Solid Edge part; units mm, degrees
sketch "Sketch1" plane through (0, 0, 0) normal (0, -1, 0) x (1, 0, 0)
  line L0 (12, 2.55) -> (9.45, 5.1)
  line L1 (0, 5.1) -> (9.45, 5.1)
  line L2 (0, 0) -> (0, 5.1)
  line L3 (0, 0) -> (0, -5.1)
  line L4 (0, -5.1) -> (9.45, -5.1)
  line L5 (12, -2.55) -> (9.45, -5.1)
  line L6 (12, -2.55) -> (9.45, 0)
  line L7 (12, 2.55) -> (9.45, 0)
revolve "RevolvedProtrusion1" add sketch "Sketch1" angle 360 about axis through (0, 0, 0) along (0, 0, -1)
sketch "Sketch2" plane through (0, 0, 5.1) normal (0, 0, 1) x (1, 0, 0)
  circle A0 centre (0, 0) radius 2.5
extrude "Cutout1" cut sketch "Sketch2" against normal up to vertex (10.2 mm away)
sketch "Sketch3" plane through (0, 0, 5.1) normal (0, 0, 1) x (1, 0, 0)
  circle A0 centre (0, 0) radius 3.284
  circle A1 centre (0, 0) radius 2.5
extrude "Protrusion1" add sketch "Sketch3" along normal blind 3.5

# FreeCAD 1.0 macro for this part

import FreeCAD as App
import Part
import Sketcher

V = App.Vector
Q = App.Units.Quantity


def add_polygon(sketch, points):
    """Adds a closed chain of lines whose ends are joined by coincident constraints."""
    first, n = sketch.GeometryCount, len(points)
    for a, b in zip(points, points[1:] + points[:1]):
        sketch.addGeometry(Part.LineSegment(App.Vector(*a, 0), App.Vector(*b, 0)), False)
    for i in range(n):
        sketch.addConstraint(Sketcher.Constraint("Coincident", first + i, 2, first + (i + 1) % n, 1))

doc = App.newDocument("Part")
body = doc.addObject("PartDesign::Body", "Body")

# Sketch on XZ plane
sketch1 = body.newObject("Sketcher::SketchObject", "Sketch")
sketch1.AttachmentSupport = (doc.getObject("XZ_Plane"), [""])
sketch1.MapMode = "FlatFace"
add_polygon(sketch1, [(9.45, 0), (12, 2.55), (9.45, 5.1), (0, 5.1), (0, -5.1), (9.45, -5.1), (12, -2.55)])  # lines 0-6
sketch1.addConstraint(Sketcher.Constraint("Horizontal", 2))
sketch1.addConstraint(Sketcher.Constraint("Vertical", 3))
sketch1.addConstraint(Sketcher.Constraint("Horizontal", 4))
sketch1.addConstraint(Sketcher.Constraint("Symmetric", 2, 2, 3, 2, -1, 1))
sketch1.addConstraint(Sketcher.Constraint("Symmetric", 0, 2, 5, 2, -1))
sketch1.addConstraint(Sketcher.Constraint("PointOnObject", 6, 2, -1))
sketch1.addConstraint(Sketcher.Constraint("Perpendicular", 0, 1))
sketch1.addConstraint(Sketcher.Constraint("Perpendicular", 1, 5))
sketch1.addConstraint(Sketcher.Constraint("Perpendicular", 5, 6))
sketch1.addConstraint(Sketcher.Constraint("Vertical", 4, 2, 6, 2))
sketch1.addConstraint(Sketcher.Constraint("DistanceY", 3, 2, 3, 1, Q("10.2 mm")))
sketch1.addConstraint(Sketcher.Constraint("DistanceX", -1, 1, 0, 2, Q("12 mm")))
revolution = body.newObject("PartDesign::Revolution", "Revolution")
revolution.Profile = sketch1
revolution.ReferenceAxis = (sketch1, ["V_Axis"])
revolution.Angle = 360

# Sketch on XY plane
sketch2 = body.newObject("Sketcher::SketchObject", "Sketch001")
sketch2.AttachmentSupport = (doc.getObject("XY_Plane"), [""])
sketch2.MapMode = "FlatFace"
sketch2.AttachmentOffset = App.Placement(V(0, 0, 5.1), App.Rotation())
sketch2.addGeometry(Part.Circle(V(0, 0, 0), V(0, 0, 1), 2.5), False)
sketch2.addConstraint(Sketcher.Constraint("Coincident", 0, 3, -1, 1))
sketch2.addConstraint(Sketcher.Constraint("Diameter", 0, Q("5 mm")))
pocket1 = body.newObject("PartDesign::Pocket", "Pocket")
pocket1.Profile = sketch2
pocket1.Length = 10.2

# Sketch on XY plane
sketch3 = body.newObject("Sketcher::SketchObject", "Sketch002")
sketch3.AttachmentSupport = (doc.getObject("XY_Plane"), [""])
sketch3.MapMode = "FlatFace"
sketch3.AttachmentOffset = App.Placement(V(0, 0, 5.1), App.Rotation())
sketch3.addGeometry(Part.Circle(V(0, 0, 0), V(0, 0, 1), 3.284), False)
sketch3.addGeometry(Part.Circle(V(0, 0, 0), V(0, 0, 1), 2.5), False)
sketch3.addConstraint(Sketcher.Constraint("Coincident", 0, 3, -1, 1))
sketch3.addConstraint(Sketcher.Constraint("Coincident", 1, 3, -1, 1))
sketch3.addConstraint(Sketcher.Constraint("Diameter", 1, Q("5 mm")))
sketch3.addConstraint(Sketcher.Constraint("Diameter", 0, Q("6.568 mm")))
pad1 = body.newObject("PartDesign::Pad", "Pad")
pad1.Profile = sketch3
pad1.Length = 3.5

doc.recompute()
